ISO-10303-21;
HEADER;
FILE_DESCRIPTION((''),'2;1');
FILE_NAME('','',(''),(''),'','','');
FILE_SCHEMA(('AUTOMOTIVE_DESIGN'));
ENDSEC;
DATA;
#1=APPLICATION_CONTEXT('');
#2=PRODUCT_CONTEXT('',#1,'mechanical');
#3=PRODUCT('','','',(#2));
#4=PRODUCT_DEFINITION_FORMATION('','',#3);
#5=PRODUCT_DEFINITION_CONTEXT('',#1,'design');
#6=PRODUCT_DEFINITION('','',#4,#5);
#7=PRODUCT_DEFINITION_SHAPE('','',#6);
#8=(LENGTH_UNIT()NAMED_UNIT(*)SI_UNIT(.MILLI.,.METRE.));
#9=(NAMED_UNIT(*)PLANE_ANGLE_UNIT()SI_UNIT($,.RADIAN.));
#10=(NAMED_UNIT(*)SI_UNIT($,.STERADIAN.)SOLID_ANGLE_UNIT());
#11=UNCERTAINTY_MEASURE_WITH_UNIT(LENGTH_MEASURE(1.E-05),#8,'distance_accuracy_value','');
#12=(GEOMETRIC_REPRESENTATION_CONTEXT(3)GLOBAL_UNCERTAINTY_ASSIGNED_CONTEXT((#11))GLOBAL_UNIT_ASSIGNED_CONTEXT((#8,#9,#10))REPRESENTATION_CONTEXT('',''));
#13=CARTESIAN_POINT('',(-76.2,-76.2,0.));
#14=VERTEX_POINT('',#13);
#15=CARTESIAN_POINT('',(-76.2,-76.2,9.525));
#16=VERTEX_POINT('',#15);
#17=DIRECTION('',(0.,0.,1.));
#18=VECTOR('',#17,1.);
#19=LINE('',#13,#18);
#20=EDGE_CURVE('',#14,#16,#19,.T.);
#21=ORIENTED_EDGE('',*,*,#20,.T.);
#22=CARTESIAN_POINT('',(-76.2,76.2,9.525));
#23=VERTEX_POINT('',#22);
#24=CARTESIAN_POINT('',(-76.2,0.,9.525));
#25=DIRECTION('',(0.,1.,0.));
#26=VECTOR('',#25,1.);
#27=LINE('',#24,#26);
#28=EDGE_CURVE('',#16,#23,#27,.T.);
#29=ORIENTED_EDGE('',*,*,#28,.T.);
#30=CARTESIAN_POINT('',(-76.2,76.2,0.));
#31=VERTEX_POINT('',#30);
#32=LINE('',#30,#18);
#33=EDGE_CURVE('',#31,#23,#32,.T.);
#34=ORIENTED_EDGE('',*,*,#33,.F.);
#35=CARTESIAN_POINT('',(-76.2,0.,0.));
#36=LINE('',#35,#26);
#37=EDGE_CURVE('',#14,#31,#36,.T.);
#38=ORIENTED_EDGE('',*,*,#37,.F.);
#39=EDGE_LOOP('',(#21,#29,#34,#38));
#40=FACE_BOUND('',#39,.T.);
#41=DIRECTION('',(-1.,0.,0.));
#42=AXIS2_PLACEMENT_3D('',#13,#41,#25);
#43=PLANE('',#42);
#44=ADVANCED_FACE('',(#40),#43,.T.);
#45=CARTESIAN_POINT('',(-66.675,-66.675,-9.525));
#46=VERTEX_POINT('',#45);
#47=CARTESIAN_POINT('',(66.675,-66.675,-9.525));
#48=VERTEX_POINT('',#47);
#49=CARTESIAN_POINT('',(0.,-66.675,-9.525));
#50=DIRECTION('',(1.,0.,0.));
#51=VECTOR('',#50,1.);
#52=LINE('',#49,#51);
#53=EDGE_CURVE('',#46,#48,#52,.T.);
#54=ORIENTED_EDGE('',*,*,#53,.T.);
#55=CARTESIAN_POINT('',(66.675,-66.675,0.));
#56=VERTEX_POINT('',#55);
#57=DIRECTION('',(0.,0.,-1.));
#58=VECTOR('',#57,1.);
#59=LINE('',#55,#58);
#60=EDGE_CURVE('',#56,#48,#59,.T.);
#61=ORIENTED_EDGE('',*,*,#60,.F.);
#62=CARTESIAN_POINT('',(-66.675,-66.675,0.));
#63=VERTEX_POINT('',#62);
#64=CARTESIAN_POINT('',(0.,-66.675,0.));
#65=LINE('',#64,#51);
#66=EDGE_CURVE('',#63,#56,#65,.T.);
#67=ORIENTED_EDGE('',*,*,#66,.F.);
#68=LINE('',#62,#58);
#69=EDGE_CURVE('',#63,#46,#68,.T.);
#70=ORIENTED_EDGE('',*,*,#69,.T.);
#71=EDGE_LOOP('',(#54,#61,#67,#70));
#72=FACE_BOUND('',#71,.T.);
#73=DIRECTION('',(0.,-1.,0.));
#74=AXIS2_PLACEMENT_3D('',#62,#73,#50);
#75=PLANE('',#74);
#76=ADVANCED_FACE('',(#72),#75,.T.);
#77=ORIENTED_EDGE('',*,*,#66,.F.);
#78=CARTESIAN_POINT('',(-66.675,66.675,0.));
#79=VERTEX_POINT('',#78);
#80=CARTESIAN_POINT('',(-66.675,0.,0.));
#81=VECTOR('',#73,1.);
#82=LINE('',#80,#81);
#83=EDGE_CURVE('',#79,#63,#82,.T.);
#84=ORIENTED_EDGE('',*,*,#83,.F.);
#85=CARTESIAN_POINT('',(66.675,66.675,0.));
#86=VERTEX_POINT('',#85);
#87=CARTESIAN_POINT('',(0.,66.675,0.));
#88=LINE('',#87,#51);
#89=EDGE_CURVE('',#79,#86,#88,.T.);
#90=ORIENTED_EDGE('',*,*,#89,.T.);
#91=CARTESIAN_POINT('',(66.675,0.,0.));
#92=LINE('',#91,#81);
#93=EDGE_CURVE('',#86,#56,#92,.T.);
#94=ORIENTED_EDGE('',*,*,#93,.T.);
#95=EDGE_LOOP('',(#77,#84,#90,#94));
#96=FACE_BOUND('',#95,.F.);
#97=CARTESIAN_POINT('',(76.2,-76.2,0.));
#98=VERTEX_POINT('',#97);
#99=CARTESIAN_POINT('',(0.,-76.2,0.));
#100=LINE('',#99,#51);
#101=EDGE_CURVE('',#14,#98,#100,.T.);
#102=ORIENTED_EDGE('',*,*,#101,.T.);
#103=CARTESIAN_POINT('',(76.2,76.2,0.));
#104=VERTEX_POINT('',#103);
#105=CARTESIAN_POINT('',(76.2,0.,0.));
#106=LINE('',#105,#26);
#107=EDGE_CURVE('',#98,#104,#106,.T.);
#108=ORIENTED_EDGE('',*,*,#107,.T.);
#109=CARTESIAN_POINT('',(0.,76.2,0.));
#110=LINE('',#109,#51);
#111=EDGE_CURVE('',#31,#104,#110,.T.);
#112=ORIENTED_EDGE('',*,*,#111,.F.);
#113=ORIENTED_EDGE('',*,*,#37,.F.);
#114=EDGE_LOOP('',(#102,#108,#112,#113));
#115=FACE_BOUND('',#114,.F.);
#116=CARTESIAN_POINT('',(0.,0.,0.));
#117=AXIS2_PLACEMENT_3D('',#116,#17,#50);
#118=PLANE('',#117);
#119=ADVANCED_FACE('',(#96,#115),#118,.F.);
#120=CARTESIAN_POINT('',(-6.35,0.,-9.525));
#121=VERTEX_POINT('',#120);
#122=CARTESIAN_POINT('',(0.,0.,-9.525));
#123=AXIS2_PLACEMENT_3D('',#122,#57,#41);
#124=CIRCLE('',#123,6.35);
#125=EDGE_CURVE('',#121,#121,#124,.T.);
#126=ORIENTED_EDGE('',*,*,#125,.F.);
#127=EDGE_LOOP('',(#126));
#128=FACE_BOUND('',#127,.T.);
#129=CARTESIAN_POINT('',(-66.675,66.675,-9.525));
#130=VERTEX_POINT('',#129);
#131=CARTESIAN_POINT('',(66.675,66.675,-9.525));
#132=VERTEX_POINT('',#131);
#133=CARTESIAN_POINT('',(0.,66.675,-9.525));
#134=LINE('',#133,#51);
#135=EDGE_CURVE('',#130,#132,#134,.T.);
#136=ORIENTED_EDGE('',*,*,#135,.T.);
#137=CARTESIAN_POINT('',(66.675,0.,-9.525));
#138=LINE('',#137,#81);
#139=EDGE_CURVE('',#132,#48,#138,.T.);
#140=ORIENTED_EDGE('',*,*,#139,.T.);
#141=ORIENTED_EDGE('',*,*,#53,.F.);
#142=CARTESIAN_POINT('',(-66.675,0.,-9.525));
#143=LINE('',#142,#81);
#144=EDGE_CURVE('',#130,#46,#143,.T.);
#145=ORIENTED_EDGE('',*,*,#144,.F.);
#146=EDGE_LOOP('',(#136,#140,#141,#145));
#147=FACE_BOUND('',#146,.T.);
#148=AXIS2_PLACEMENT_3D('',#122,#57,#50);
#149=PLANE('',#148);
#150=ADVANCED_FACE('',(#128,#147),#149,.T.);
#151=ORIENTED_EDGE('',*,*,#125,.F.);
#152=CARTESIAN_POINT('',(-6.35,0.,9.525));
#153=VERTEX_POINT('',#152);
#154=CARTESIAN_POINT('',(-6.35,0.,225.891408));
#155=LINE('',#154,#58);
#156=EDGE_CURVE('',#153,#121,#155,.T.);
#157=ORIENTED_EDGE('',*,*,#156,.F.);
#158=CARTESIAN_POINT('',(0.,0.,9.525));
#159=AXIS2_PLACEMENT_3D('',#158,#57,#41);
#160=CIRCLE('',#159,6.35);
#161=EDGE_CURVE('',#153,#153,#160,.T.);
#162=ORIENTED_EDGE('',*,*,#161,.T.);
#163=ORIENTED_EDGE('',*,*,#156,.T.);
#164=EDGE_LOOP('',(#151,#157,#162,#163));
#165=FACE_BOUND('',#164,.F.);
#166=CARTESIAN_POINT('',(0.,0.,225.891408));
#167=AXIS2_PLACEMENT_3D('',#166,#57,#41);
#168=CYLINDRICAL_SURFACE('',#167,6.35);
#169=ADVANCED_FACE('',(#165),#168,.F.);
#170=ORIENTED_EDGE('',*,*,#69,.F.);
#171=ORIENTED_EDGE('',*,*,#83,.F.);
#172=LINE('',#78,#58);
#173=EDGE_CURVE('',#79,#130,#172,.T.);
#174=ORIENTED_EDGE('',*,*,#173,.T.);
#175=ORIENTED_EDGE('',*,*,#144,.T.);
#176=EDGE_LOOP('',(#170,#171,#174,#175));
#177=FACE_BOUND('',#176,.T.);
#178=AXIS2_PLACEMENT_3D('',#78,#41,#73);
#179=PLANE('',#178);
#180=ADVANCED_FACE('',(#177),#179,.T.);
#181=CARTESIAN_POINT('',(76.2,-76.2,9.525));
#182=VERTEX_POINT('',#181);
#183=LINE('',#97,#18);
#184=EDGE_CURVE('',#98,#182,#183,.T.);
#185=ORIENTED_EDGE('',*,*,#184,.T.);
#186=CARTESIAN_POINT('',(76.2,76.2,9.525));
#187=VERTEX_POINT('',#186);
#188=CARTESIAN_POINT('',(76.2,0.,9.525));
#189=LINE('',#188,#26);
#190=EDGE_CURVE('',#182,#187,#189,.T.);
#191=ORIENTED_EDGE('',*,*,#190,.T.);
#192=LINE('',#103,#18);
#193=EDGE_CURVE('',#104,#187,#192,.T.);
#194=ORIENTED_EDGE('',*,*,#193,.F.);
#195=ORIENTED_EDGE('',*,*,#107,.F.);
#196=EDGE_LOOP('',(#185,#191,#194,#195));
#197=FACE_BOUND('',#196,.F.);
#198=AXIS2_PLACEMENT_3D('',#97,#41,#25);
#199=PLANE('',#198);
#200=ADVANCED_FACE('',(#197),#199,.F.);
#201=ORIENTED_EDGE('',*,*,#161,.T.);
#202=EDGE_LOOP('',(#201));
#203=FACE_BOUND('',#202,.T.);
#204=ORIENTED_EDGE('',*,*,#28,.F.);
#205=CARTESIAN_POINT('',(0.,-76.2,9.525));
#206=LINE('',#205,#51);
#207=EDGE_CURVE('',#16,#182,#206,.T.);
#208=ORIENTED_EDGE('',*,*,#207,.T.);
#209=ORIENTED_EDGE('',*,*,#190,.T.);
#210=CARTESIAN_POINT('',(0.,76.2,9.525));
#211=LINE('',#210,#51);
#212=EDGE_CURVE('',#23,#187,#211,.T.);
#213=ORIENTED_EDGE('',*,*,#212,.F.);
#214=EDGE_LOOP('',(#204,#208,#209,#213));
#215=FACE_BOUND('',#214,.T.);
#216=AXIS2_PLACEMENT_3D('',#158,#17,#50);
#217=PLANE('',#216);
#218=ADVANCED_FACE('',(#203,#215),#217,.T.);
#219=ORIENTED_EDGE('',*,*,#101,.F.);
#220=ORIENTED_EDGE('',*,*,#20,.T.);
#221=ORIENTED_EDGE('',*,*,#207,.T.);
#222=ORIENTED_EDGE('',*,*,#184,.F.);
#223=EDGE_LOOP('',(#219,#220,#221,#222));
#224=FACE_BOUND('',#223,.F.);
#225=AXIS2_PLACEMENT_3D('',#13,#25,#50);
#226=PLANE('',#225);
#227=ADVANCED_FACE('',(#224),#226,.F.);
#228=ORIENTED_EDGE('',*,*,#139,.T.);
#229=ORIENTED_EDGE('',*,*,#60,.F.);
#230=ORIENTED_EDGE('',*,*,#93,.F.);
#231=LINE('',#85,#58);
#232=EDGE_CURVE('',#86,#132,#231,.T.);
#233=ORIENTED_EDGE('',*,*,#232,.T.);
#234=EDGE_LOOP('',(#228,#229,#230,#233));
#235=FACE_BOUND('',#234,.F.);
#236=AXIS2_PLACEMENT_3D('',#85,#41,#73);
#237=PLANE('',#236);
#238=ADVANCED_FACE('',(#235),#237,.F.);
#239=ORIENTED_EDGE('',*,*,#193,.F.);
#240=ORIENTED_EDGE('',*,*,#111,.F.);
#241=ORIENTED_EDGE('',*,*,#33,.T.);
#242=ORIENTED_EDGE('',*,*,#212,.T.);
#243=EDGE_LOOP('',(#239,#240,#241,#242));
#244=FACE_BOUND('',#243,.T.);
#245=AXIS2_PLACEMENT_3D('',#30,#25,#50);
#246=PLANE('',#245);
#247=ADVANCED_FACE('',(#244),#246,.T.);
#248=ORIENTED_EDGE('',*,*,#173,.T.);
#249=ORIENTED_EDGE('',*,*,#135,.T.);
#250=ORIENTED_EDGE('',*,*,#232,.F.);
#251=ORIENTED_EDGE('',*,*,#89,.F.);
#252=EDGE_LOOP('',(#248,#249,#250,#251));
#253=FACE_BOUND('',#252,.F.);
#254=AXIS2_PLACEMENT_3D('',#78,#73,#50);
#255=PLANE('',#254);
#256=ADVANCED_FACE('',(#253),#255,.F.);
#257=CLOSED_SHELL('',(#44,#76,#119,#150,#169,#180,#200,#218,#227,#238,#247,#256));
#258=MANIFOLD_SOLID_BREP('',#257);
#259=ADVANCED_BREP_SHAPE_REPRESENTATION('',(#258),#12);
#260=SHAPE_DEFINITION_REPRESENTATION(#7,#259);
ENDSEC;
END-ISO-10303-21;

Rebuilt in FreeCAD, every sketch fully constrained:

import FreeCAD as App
import Part
import Sketcher
from FreeCAD import Vector
Q = App.Units.Quantity


def add_polygon(sketch, points):
    """Adds a closed chain of lines whose ends are joined by coincident constraints."""
    first, n = sketch.GeometryCount, len(points)
    for a, b in zip(points, points[1:] + points[:1]):
        sketch.addGeometry(Part.LineSegment(App.Vector(*a, 0), App.Vector(*b, 0)), False)
    for i in range(n):
        sketch.addConstraint(Sketcher.Constraint("Coincident", first + i, 2, first + (i + 1) % n, 1))

doc = App.newDocument("Part")
params = doc.addObject("Spreadsheet::Sheet", "Params")
for row, (alias, value) in enumerate([
    ("sketch1_width", "6 in"),
    ("pad1_length", "0.375 in"),
    ("sketch2_width", "5.25 in"),
    ("pad2_length", "0.375 in"),
    ("sketch3_diameter", "0.5 in"),
    ("hole_diameter", "0.5 in"),
], start=1):
    params.set(f"A{row}", alias)
    params.set(f"B{row}", "=" + value)
    params.setAlias(f"B{row}", alias)

body = doc.addObject("PartDesign::Body", "Body")

# Sketch on XY plane
sketch1 = body.newObject("Sketcher::SketchObject", "Sketch")
sketch1.AttachmentSupport = (doc.getObject("XY_Plane"), [""])
sketch1.MapMode = "FlatFace"
add_polygon(sketch1, [(-76, 76), (-76, -76), (76, -76), (76, 76)])  # lines 0-3
sketch1.addConstraint([
    Sketcher.Constraint("Vertical", 0),
    Sketcher.Constraint("Horizontal", 1),
    Sketcher.Constraint("Vertical", 2),
    Sketcher.Constraint("Horizontal", 3),
    Sketcher.Constraint("Symmetric", 0, 2, 2, 2, -1, 1),
    Sketcher.Constraint("Equal", 3, 0),
    Sketcher.Constraint("DistanceX", 1, 1, 1, 2, Q("6 in")),
])
sketch1.setExpression("Constraints[10]", "Params.sketch1_width")
pad1 = body.newObject("PartDesign::Pad", "Pad")
pad1.Profile = sketch1
pad1.setExpression("Length", "Params.pad1_length")

# Sketch on XY plane
sketch2 = body.newObject("Sketcher::SketchObject", "Sketch001")
sketch2.AttachmentSupport = (doc.getObject("XY_Plane"), [""])
sketch2.MapMode = "FlatFace"
add_polygon(sketch2, [(-67, -67), (-67, 67), (67, 67), (67, -67)])  # lines 0-3
sketch2.addConstraint([
    Sketcher.Constraint("Vertical", 0),
    Sketcher.Constraint("Horizontal", 1),
    Sketcher.Constraint("Vertical", 2),
    Sketcher.Constraint("Horizontal", 3),
    Sketcher.Constraint("Symmetric", 0, 2, 2, 2, -1, 1),
    Sketcher.Constraint("Equal", 3, 0),
    Sketcher.Constraint("DistanceX", 1, 1, 1, 2, Q("5.25 in")),
])
sketch2.setExpression("Constraints[10]", "Params.sketch2_width")
pad2 = body.newObject("PartDesign::Pad", "Pad001")
pad2.Profile = sketch2
pad2.setExpression("Length", "Params.pad2_length")
pad2.Reversed = True

# Sketch on XY plane
sketch3 = body.newObject("Sketcher::SketchObject", "Sketch002")
sketch3.AttachmentSupport = (doc.getObject("XY_Plane"), [""])
sketch3.MapMode = "FlatFace"
sketch3.AttachmentOffset = App.Placement(Vector(0, 0, 0.375 * 25.4), App.Rotation())
sketch3.addGeometry(Part.Circle(Vector(0, 0, 0), Vector(0, 0, 1), 6), False)
sketch3.addConstraint([
    Sketcher.Constraint("Coincident", 0, 3, -1, 1),
    Sketcher.Constraint("Diameter", 0, Q("0.5 in")),
])
sketch3.setExpression("Constraints[1]", "Params.sketch3_diameter")
doc.recompute()
hole = body.newObject("PartDesign::Hole", "Hole")
hole.Profile = sketch3
hole.ThreadType = "None"
hole.setExpression("Diameter", "Params.hole_diameter")
hole.DepthType = "ThroughAll"

doc.recompute()
